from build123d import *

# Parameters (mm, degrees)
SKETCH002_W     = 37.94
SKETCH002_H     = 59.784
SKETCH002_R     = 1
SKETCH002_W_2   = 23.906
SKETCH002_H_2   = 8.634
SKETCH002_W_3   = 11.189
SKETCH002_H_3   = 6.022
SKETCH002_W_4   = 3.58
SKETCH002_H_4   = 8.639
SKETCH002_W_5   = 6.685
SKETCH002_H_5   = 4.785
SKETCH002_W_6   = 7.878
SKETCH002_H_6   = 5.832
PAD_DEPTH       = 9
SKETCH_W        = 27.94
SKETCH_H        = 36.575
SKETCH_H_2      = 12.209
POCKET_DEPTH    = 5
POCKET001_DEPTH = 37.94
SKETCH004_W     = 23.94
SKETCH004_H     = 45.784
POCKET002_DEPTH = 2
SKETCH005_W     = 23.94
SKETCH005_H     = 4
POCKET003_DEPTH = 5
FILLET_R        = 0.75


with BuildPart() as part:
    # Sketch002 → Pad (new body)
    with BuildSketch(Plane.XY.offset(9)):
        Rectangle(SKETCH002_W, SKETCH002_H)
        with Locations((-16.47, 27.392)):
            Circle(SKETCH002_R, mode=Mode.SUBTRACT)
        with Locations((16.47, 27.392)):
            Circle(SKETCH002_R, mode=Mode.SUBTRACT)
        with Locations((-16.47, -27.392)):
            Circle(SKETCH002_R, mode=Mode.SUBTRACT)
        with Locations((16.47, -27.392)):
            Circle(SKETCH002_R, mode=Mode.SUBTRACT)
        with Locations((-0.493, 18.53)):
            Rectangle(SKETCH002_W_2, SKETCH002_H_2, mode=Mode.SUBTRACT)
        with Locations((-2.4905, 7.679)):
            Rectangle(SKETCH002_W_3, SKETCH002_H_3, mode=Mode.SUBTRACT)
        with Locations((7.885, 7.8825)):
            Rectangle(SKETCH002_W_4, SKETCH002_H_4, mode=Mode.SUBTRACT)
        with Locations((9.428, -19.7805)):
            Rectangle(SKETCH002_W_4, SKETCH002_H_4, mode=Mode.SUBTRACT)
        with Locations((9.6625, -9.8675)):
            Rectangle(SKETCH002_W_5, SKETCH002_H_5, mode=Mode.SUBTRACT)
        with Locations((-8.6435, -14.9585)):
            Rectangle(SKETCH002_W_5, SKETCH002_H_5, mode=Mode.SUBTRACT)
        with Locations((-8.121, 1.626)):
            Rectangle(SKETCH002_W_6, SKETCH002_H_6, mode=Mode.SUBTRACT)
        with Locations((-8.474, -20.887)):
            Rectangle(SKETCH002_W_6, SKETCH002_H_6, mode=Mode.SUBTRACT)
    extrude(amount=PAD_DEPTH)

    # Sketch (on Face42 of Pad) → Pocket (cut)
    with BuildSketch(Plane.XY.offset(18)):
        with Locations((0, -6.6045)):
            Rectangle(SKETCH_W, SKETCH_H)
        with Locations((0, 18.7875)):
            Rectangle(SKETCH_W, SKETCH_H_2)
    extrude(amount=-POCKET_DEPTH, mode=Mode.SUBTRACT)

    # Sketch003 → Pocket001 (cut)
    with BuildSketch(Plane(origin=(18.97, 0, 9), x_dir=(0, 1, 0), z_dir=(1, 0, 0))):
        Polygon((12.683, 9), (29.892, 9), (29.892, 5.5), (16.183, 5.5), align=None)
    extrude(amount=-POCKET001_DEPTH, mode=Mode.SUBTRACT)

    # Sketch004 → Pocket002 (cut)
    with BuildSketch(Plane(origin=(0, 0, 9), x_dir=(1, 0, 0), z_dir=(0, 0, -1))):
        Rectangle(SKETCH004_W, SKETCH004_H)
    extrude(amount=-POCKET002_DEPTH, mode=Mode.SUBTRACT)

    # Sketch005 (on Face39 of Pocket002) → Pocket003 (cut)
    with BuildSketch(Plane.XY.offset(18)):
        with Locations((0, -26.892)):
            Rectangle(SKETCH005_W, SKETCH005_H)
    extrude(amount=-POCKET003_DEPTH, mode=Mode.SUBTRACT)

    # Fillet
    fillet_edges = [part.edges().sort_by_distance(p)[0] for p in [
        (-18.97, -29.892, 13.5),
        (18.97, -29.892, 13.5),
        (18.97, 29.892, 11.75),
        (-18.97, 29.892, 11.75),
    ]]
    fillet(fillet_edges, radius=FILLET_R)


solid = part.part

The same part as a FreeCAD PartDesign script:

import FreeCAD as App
import Part
import Sketcher
from FreeCAD import Vector
Q = App.Units.Quantity


def edges_at(feature, points):
    """Names of the edges that pass closest to the given points."""
    edges = feature.Shape.Edges
    near = lambda p: min(range(len(edges)), key=lambda i: edges[i].distToShape(Part.Vertex(*p))[0])
    return sorted({f"Edge{near(p) + 1}" for p in points})

doc = App.newDocument("Part")
body = doc.addObject("PartDesign::Body", "Body")

sketch1 = body.newObject("Sketcher::SketchObject", "Sketch")
sketch1.AttachmentSupport = (doc.getObject("XY_Plane"), [""])
sketch1.MapMode = "FlatFace"
sketch1.AttachmentOffset = App.Placement(Vector(0, 0, 9), App.Rotation())
sketch1.addGeometry([
    Part.LineSegment(Vector(-19, 29.9, 0), Vector(-19, -29.9, 0)),
    Part.LineSegment(Vector(-19, -29.9, 0), Vector(19, -29.9, 0)),
    Part.LineSegment(Vector(19, -29.9, 0), Vector(19, 29.9, 0)),
    Part.LineSegment(Vector(19, 29.9, 0), Vector(-19, 29.9, 0)),
    Part.Circle(Vector(-16.5, -27.4, 0), Vector(0, 0, 1), 1),
    Part.LineSegment(Vector(-4.5, -23.8, 0), Vector(-12.4, -23.8, 0)),
    Part.LineSegment(Vector(-12.4, -23.8, 0), Vector(-12.4, -18, 0)),
    Part.LineSegment(Vector(-12.4, -18, 0), Vector(-4.5, -18, 0)),
    Part.LineSegment(Vector(-4.5, -18, 0), Vector(-4.5, -23.8, 0)),
    Part.LineSegment(Vector(-5.3, -17.4, 0), Vector(-12, -17.4, 0)),
    Part.LineSegment(Vector(-12, -17.4, 0), Vector(-12, -12.6, 0)),
    Part.LineSegment(Vector(-12, -12.6, 0), Vector(-5.3, -12.6, 0)),
    Part.LineSegment(Vector(-5.3, -12.6, 0), Vector(-5.3, -17.4, 0)),
    Part.Circle(Vector(16.5, -27.4, 0), Vector(0, 0, 1), 1),
    Part.LineSegment(Vector(11.2, -24.1, 0), Vector(7.6, -24.1, 0)),
    Part.LineSegment(Vector(7.6, -24.1, 0), Vector(7.6, -15.5, 0)),
    Part.LineSegment(Vector(7.6, -15.5, 0), Vector(11.2, -15.5, 0)),
    Part.LineSegment(Vector(11.2, -15.5, 0), Vector(11.2, -24.1, 0)),
    Part.LineSegment(Vector(13, -12.3, 0), Vector(6.3, -12.3, 0)),
    Part.LineSegment(Vector(6.3, -12.3, 0), Vector(6.3, -7.5, 0)),
    Part.LineSegment(Vector(6.3, -7.5, 0), Vector(13, -7.5, 0)),
    Part.LineSegment(Vector(13, -7.5, 0), Vector(13, -12.3, 0)),
    Part.LineSegment(Vector(-4.2, -1.3, 0), Vector(-12.1, -1.3, 0)),
    Part.LineSegment(Vector(-12.1, -1.3, 0), Vector(-12.1, 4.5, 0)),
    Part.LineSegment(Vector(-12.1, 4.5, 0), Vector(-4.2, 4.5, 0)),
    Part.LineSegment(Vector(-4.2, 4.5, 0), Vector(-4.2, -1.3, 0)),
    Part.LineSegment(Vector(3.1, 4.7, 0), Vector(-8.1, 4.7, 0)),
    Part.LineSegment(Vector(-8.1, 4.7, 0), Vector(-8.1, 10.7, 0)),
    Part.LineSegment(Vector(-8.1, 10.7, 0), Vector(3.1, 10.7, 0)),
    Part.LineSegment(Vector(3.1, 10.7, 0), Vector(3.1, 4.7, 0)),
    Part.Circle(Vector(-16.5, 27.4, 0), Vector(0, 0, 1), 1),
    Part.LineSegment(Vector(11.5, 14.2, 0), Vector(-12.4, 14.2, 0)),
    Part.LineSegment(Vector(-12.4, 14.2, 0), Vector(-12.4, 22.8, 0)),
    Part.LineSegment(Vector(-12.4, 22.8, 0), Vector(11.5, 22.8, 0)),
    Part.LineSegment(Vector(11.5, 22.8, 0), Vector(11.5, 14.2, 0)),
    Part.LineSegment(Vector(9.7, 3.6, 0), Vector(6.1, 3.6, 0)),
    Part.LineSegment(Vector(6.1, 3.6, 0), Vector(6.1, 12.2, 0)),
    Part.LineSegment(Vector(6.1, 12.2, 0), Vector(9.7, 12.2, 0)),
    Part.LineSegment(Vector(9.7, 12.2, 0), Vector(9.7, 3.6, 0)),
    Part.Circle(Vector(16.5, 27.4, 0), Vector(0, 0, 1), 1),
], False)
sketch1.addConstraint([
    Sketcher.Constraint("Coincident", 0, 2, 1, 1),
    Sketcher.Constraint("Coincident", 1, 2, 2, 1),
    Sketcher.Constraint("Coincident", 2, 2, 3, 1),
    Sketcher.Constraint("Coincident", 3, 2, 0, 1),
    Sketcher.Constraint("Coincident", 5, 2, 6, 1),
    Sketcher.Constraint("Coincident", 6, 2, 7, 1),
    Sketcher.Constraint("Coincident", 7, 2, 8, 1),
    Sketcher.Constraint("Coincident", 8, 2, 5, 1),
    Sketcher.Constraint("Coincident", 9, 2, 10, 1),
    Sketcher.Constraint("Coincident", 10, 2, 11, 1),
    Sketcher.Constraint("Coincident", 11, 2, 12, 1),
    Sketcher.Constraint("Coincident", 12, 2, 9, 1),
    Sketcher.Constraint("Coincident", 14, 2, 15, 1),
    Sketcher.Constraint("Coincident", 15, 2, 16, 1),
    Sketcher.Constraint("Coincident", 16, 2, 17, 1),
    Sketcher.Constraint("Coincident", 17, 2, 14, 1),
    Sketcher.Constraint("Coincident", 18, 2, 19, 1),
    Sketcher.Constraint("Coincident", 19, 2, 20, 1),
    Sketcher.Constraint("Coincident", 20, 2, 21, 1),
    Sketcher.Constraint("Coincident", 21, 2, 18, 1),
    Sketcher.Constraint("Coincident", 22, 2, 23, 1),
    Sketcher.Constraint("Coincident", 23, 2, 24, 1),
    Sketcher.Constraint("Coincident", 24, 2, 25, 1),
    Sketcher.Constraint("Coincident", 25, 2, 22, 1),
    Sketcher.Constraint("Coincident", 26, 2, 27, 1),
    Sketcher.Constraint("Coincident", 27, 2, 28, 1),
    Sketcher.Constraint("Coincident", 28, 2, 29, 1),
    Sketcher.Constraint("Coincident", 29, 2, 26, 1),
    Sketcher.Constraint("Coincident", 31, 2, 32, 1),
    Sketcher.Constraint("Coincident", 32, 2, 33, 1),
    Sketcher.Constraint("Coincident", 33, 2, 34, 1),
    Sketcher.Constraint("Coincident", 34, 2, 31, 1),
    Sketcher.Constraint("Coincident", 35, 2, 36, 1),
    Sketcher.Constraint("Coincident", 36, 2, 37, 1),
    Sketcher.Constraint("Coincident", 37, 2, 38, 1),
    Sketcher.Constraint("Coincident", 38, 2, 35, 1),
    Sketcher.Constraint("Vertical", 0),
    Sketcher.Constraint("Horizontal", 1),
    Sketcher.Constraint("Vertical", 2),
    Sketcher.Constraint("Horizontal", 3),
    Sketcher.Constraint("Horizontal", 5),
    Sketcher.Constraint("Vertical", 6),
    Sketcher.Constraint("Horizontal", 7),
    Sketcher.Constraint("Vertical", 8),
    Sketcher.Constraint("Horizontal", 9),
    Sketcher.Constraint("Vertical", 10),
    Sketcher.Constraint("Horizontal", 11),
    Sketcher.Constraint("Vertical", 12),
    Sketcher.Constraint("Horizontal", 14),
    Sketcher.Constraint("Vertical", 15),
    Sketcher.Constraint("Horizontal", 16),
    Sketcher.Constraint("Vertical", 17),
    Sketcher.Constraint("Horizontal", 18),
    Sketcher.Constraint("Vertical", 19),
    Sketcher.Constraint("Horizontal", 20),
    Sketcher.Constraint("Vertical", 21),
    Sketcher.Constraint("Horizontal", 22),
    Sketcher.Constraint("Vertical", 23),
    Sketcher.Constraint("Horizontal", 24),
    Sketcher.Constraint("Vertical", 25),
    Sketcher.Constraint("Horizontal", 26),
    Sketcher.Constraint("Vertical", 27),
    Sketcher.Constraint("Horizontal", 28),
    Sketcher.Constraint("Vertical", 29),
    Sketcher.Constraint("Horizontal", 31),
    Sketcher.Constraint("Vertical", 32),
    Sketcher.Constraint("Horizontal", 33),
    Sketcher.Constraint("Vertical", 34),
    Sketcher.Constraint("Horizontal", 35),
    Sketcher.Constraint("Vertical", 36),
    Sketcher.Constraint("Horizontal", 37),
    Sketcher.Constraint("Vertical", 38),
    Sketcher.Constraint("Equal", 4, 13),
    Sketcher.Constraint("Equal", 13, 30),
    Sketcher.Constraint("Equal", 30, 39),
    Sketcher.Constraint("Symmetric", 13, 3, 30, 3, -1, 1),
    Sketcher.Constraint("Symmetric", 4, 3, 39, 3, -1, 1),
    Sketcher.Constraint("Symmetric", 0, 2, 2, 2, -1, 1),
    Sketcher.Constraint("Symmetric", 4, 3, 13, 3, -2),
    Sketcher.Constraint("Equal", 11, 18),
    Sketcher.Constraint("Equal", 7, 22),
    Sketcher.Constraint("Equal", 16, 35),
    Sketcher.Constraint("Equal", 12, 19),
    Sketcher.Constraint("Equal", 8, 23),
    Sketcher.Constraint("Equal", 17, 36),
    Sketcher.Constraint("Diameter", 4, Q("2 mm")),
    Sketcher.Constraint("DistanceX", 1, 1, 1, 2, Q("37.94 mm")),
    Sketcher.Constraint("DistanceX", 14, 2, 14, 1, Q("3.58 mm")),
    Sketcher.Constraint("DistanceY", 14, 2, -1, 1, Q("24.1 mm")),
    Sketcher.Constraint("DistanceX", 0, 2, 4, 3, Q("2.5 mm")),
    Sketcher.Constraint("DistanceY", 0, 2, 4, 3, Q("2.5 mm")),
    Sketcher.Constraint("DistanceX", 5, 2, 5, 1, Q("7.878 mm")),
    Sketcher.Constraint("DistanceX", 9, 2, 9, 1, Q("6.685 mm")),
    Sketcher.Constraint("DistanceX", 26, 2, 26, 1, Q("11.189 mm")),
    Sketcher.Constraint("DistanceX", 31, 2, 31, 1, Q("23.906 mm")),
    Sketcher.Constraint("DistanceY", 0, 2, 0, 1, Q("59.784 mm")),
    Sketcher.Constraint("DistanceY", 6, 1, 6, 2, Q("5.832 mm")),
    Sketcher.Constraint("DistanceY", 10, 1, 10, 2, Q("4.785 mm")),
    Sketcher.Constraint("DistanceY", 15, 1, 15, 2, Q("8.639 mm")),
    Sketcher.Constraint("DistanceY", 27, 1, 27, 2, Q("6.022 mm")),
    Sketcher.Constraint("DistanceY", 32, 1, 32, 2, Q("8.634 mm")),
    Sketcher.Constraint("DistanceX", -1, 1, 18, 2, Q("6.32 mm")),
    Sketcher.Constraint("DistanceY", 18, 2, -1, 1, Q("12.26 mm")),
    Sketcher.Constraint("DistanceX", 22, 2, -1, 1, Q("12.06 mm")),
    Sketcher.Constraint("DistanceY", 22, 2, -1, 1, Q("1.29 mm")),
    Sketcher.Constraint("DistanceY", -1, 1, 27, 2, Q("10.69 mm")),
    Sketcher.Constraint("DistanceX", -1, 1, 33, 2, Q("11.46 mm")),
    Sketcher.Constraint("DistanceY", 6, 2, 9, 2, Q("0.62 mm")),
    Sketcher.Constraint("DistanceY", 7, 2, 15, 2, Q("2.51 mm")),
    Sketcher.Constraint("DistanceX", 5, 2, -1, 1, Q("12.413 mm")),
    Sketcher.Constraint("DistanceX", 9, 2, -1, 1, Q("11.986 mm")),
    Sketcher.Constraint("DistanceX", -1, 1, 14, 2, Q("7.638 mm")),
    Sketcher.Constraint("DistanceX", 26, 2, -1, 1, Q("8.085 mm")),
    Sketcher.Constraint("DistanceY", -1, 1, 31, 2, Q("14.213 mm")),
    Sketcher.Constraint("DistanceX", -1, 1, 35, 2, Q("6.095 mm")),
    Sketcher.Constraint("DistanceY", -1, 1, 35, 2, Q("3.563 mm")),
])
pad1 = body.newObject("PartDesign::Pad", "Pad")
pad1.Profile = sketch1
pad1.Length = 9

sketch2 = body.newObject("Sketcher::SketchObject", "Sketch001")
sketch2.AttachmentSupport = (doc.getObject("XY_Plane"), [""])
sketch2.MapMode = "FlatFace"
sketch2.AttachmentOffset = App.Placement(Vector(0, 0, 18), App.Rotation())
sketch2.addGeometry([
    Part.LineSegment(Vector(-14, 12, 0), Vector(-14, -25, 0)),
    Part.LineSegment(Vector(-14, -25, 0), Vector(14, -25, 0)),
    Part.LineSegment(Vector(14, -25, 0), Vector(14, 12, 0)),
    Part.LineSegment(Vector(14, 12, 0), Vector(-14, 12, 0)),
    Part.LineSegment(Vector(-14, 25, 0), Vector(-14, 13, 0)),
    Part.LineSegment(Vector(-14, 13, 0), Vector(14, 13, 0)),
    Part.LineSegment(Vector(14, 13, 0), Vector(14, 25, 0)),
    Part.LineSegment(Vector(14, 25, 0), Vector(-14, 25, 0)),
], False)
sketch2.addConstraint([
    Sketcher.Constraint("Coincident", 0, 2, 1, 1),
    Sketcher.Constraint("Coincident", 1, 2, 2, 1),
    Sketcher.Constraint("Coincident", 2, 2, 3, 1),
    Sketcher.Constraint("Coincident", 3, 2, 0, 1),
    Sketcher.Constraint("Coincident", 4, 2, 5, 1),
    Sketcher.Constraint("Coincident", 5, 2, 6, 1),
    Sketcher.Constraint("Coincident", 6, 2, 7, 1),
    Sketcher.Constraint("Coincident", 7, 2, 4, 1),
    Sketcher.Constraint("Vertical", 0),
    Sketcher.Constraint("Horizontal", 1),
    Sketcher.Constraint("Vertical", 2),
    Sketcher.Constraint("Horizontal", 3),
    Sketcher.Constraint("Vertical", 4),
    Sketcher.Constraint("Horizontal", 5),
    Sketcher.Constraint("Vertical", 6),
    Sketcher.Constraint("Horizontal", 7),
    Sketcher.Constraint("Symmetric", 0, 2, 6, 2, -1, 1),
    Sketcher.Constraint("Vertical", 3, 2, 4, 2),
    Sketcher.Constraint("Vertical", 2, 2, 5, 2),
    Sketcher.Constraint("DistanceY", 3, 2, 4, 2, Q("1 mm")),
    Sketcher.Constraint("DistanceX", 1, 1, 1, 2, Q("27.94 mm")),
    Sketcher.Constraint("DistanceY", 0, 2, 0, 1, Q("36.575 mm")),
    Sketcher.Constraint("DistanceY", 4, 2, 4, 1, Q("12.209 mm")),
])
pocket1 = body.newObject("PartDesign::Pocket", "Pocket")
pocket1.Profile = sketch2
pocket1.Length = 5

sketch3 = body.newObject("Sketcher::SketchObject", "Sketch002")
sketch3.AttachmentSupport = (doc.getObject("YZ_Plane"), [""])
sketch3.MapMode = "FlatFace"
sketch3.AttachmentOffset = App.Placement(Vector(0, 0, 18.97), App.Rotation())
sketch3.addGeometry([
    Part.LineSegment(Vector(29.9, 18, 0), Vector(12.7, 18, 0)),
    Part.LineSegment(Vector(12.7, 18, 0), Vector(16.2, 14.5, 0)),
    Part.LineSegment(Vector(16.2, 14.5, 0), Vector(29.9, 14.5, 0)),
    Part.LineSegment(Vector(29.9, 14.5, 0), Vector(29.9, 18, 0)),
], False)
sketch3.addConstraint([
    Sketcher.Constraint("Coincident", 0, 2, 1, 1),
    Sketcher.Constraint("Coincident", 1, 2, 2, 1),
    Sketcher.Constraint("Coincident", 2, 2, 3, 1),
    Sketcher.Constraint("Coincident", 3, 2, 0, 1),
    Sketcher.Constraint("Horizontal", 0),
    Sketcher.Constraint("Horizontal", 2),
    Sketcher.Constraint("Vertical", 3),
    Sketcher.Constraint("Angle", 1, Q("-45 deg")),
    Sketcher.Constraint("DistanceY", 3, 1, 3, 2, Q("3.5 mm")),
    Sketcher.Constraint("DistanceY", -1, 1, 0, 2, Q("18 mm")),
    Sketcher.Constraint("DistanceX", 0, 2, 0, 1, Q("17.209 mm")),
    Sketcher.Constraint("DistanceX", -1, 1, 0, 2, Q("12.683 mm")),
])
pocket2 = body.newObject("PartDesign::Pocket", "Pocket001")
pocket2.Profile = sketch3
pocket2.Length = 37.94

sketch4 = body.newObject("Sketcher::SketchObject", "Sketch003")
sketch4.AttachmentSupport = (doc.getObject("XY_Plane"), [""])
sketch4.MapMode = "FlatFace"
sketch4.AttachmentOffset = App.Placement(Vector(0, 0, 9), App.Rotation())
sketch4.addGeometry([
    Part.LineSegment(Vector(-12, -23, 0), Vector(-12, 23, 0)),
    Part.LineSegment(Vector(-12, 23, 0), Vector(12, 23, 0)),
    Part.LineSegment(Vector(12, 23, 0), Vector(12, -23, 0)),
    Part.LineSegment(Vector(12, -23, 0), Vector(-12, -23, 0)),
], False)
sketch4.addConstraint([
    Sketcher.Constraint("Coincident", 0, 2, 1, 1),
    Sketcher.Constraint("Coincident", 1, 2, 2, 1),
    Sketcher.Constraint("Coincident", 2, 2, 3, 1),
    Sketcher.Constraint("Coincident", 3, 2, 0, 1),
    Sketcher.Constraint("Vertical", 0),
    Sketcher.Constraint("Horizontal", 1),
    Sketcher.Constraint("Vertical", 2),
    Sketcher.Constraint("Horizontal", 3),
    Sketcher.Constraint("Symmetric", 0, 2, 2, 2, -1, 1),
    Sketcher.Constraint("DistanceX", 1, 1, 1, 2, Q("23.94 mm")),
    Sketcher.Constraint("DistanceY", 0, 1, 0, 2, Q("45.784 mm")),
])
pocket3 = body.newObject("PartDesign::Pocket", "Pocket002")
pocket3.Profile = sketch4
pocket3.Length = 2
pocket3.Reversed = True

sketch5 = body.newObject("Sketcher::SketchObject", "Sketch004")
sketch5.AttachmentSupport = (doc.getObject("XY_Plane"), [""])
sketch5.MapMode = "FlatFace"
sketch5.AttachmentOffset = App.Placement(Vector(0, 0, 18), App.Rotation())
sketch5.addGeometry([
    Part.LineSegment(Vector(-12, -24.9, 0), Vector(-12, -28.9, 0)),
    Part.LineSegment(Vector(-12, -28.9, 0), Vector(12, -28.9, 0)),
    Part.LineSegment(Vector(12, -28.9, 0), Vector(12, -24.9, 0)),
    Part.LineSegment(Vector(12, -24.9, 0), Vector(-12, -24.9, 0)),
], False)
sketch5.addConstraint([
    Sketcher.Constraint("Coincident", 0, 2, 1, 1),
    Sketcher.Constraint("Coincident", 1, 2, 2, 1),
    Sketcher.Constraint("Coincident", 2, 2, 3, 1),
    Sketcher.Constraint("Coincident", 3, 2, 0, 1),
    Sketcher.Constraint("Vertical", 0),
    Sketcher.Constraint("Horizontal", 1),
    Sketcher.Constraint("Vertical", 2),
    Sketcher.Constraint("Horizontal", 3),
    Sketcher.Constraint("DistanceY", 0, 2, 0, 1, Q("4 mm")),
    Sketcher.Constraint("DistanceX", 1, 1, 1, 2, Q("23.94 mm")),
    Sketcher.Constraint("DistanceX", 0, 2, -1, 1, Q("11.97 mm")),
    Sketcher.Constraint("DistanceY", 0, 2, -1, 1, Q("28.892 mm")),
])
pocket4 = body.newObject("PartDesign::Pocket", "Pocket003")
pocket4.Profile = sketch5
pocket4.Length = 5
doc.recompute()

fillet = body.newObject("PartDesign::Fillet", "Fillet")
fillet.Base = (pocket4, edges_at(pocket4, [
    (-18.97, -29.892, 13.5),
    (18.97, -29.892, 13.5),
    (18.97, 29.892, 11.75),
    (-18.97, 29.892, 11.75),
]))
fillet.Radius = 0.75

doc.recompute()
